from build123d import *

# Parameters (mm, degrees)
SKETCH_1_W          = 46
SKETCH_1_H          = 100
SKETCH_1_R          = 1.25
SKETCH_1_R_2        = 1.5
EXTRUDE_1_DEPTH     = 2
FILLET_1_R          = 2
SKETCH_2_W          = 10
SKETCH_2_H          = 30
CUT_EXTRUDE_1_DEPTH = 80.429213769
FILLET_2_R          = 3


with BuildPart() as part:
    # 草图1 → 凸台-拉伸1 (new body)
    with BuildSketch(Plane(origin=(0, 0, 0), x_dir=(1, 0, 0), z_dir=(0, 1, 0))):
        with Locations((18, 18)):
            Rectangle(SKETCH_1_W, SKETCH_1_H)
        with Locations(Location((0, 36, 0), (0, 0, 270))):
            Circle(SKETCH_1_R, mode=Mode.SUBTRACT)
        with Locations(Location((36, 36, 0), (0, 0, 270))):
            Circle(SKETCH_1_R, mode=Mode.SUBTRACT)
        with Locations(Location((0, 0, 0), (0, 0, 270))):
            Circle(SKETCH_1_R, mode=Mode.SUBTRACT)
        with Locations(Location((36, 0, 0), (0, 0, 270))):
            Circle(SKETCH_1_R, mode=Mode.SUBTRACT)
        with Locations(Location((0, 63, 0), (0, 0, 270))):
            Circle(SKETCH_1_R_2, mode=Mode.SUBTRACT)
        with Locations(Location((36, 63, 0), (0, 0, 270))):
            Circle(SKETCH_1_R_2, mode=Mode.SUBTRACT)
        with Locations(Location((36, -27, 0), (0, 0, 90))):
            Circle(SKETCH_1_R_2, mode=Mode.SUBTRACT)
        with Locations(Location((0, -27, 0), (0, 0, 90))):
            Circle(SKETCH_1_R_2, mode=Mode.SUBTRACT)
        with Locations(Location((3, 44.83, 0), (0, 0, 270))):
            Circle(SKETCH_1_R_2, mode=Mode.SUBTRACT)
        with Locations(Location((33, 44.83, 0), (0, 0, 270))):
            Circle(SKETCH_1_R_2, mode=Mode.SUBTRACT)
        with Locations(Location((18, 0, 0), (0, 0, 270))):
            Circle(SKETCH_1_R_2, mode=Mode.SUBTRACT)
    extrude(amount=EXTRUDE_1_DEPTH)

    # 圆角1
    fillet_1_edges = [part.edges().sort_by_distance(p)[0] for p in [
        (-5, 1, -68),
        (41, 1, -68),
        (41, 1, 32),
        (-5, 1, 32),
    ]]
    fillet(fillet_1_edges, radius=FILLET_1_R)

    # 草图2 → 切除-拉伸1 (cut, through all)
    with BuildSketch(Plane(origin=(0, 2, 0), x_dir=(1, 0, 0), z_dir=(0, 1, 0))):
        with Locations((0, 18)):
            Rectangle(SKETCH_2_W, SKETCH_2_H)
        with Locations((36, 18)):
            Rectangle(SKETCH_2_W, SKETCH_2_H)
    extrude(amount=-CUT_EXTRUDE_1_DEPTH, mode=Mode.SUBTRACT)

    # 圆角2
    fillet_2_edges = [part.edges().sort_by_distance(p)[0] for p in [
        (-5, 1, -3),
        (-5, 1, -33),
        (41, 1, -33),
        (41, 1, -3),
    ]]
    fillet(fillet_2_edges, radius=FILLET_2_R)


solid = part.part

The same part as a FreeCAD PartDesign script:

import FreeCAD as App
import Part
import Sketcher
from FreeCAD import Vector
Q = App.Units.Quantity


def edges_at(feature, points):
    """Names of the edges that pass closest to the given points."""
    edges = feature.Shape.Edges
    near = lambda p: min(range(len(edges)), key=lambda i: edges[i].distToShape(Part.Vertex(*p))[0])
    return sorted({f"Edge{near(p) + 1}" for p in points})


def add_polygon(sketch, points):
    """Adds a closed chain of lines whose ends are joined by coincident constraints."""
    first, n = sketch.GeometryCount, len(points)
    for a, b in zip(points, points[1:] + points[:1]):
        sketch.addGeometry(Part.LineSegment(App.Vector(*a, 0), App.Vector(*b, 0)), False)
    for i in range(n):
        sketch.addConstraint(Sketcher.Constraint("Coincident", first + i, 2, first + (i + 1) % n, 1))

doc = App.newDocument("Part")
body = doc.addObject("PartDesign::Body", "Body")

# Sketch on XZ plane
sketch1 = body.newObject("Sketcher::SketchObject", "Sketch")
sketch1.AttachmentSupport = (doc.getObject("XZ_Plane"), [""])
sketch1.MapMode = "FlatFace"
add_polygon(sketch1, [(-5, -68), (-5, 32), (41, 32), (41, -68)])  # lines 0-3
sketch1.addGeometry(Part.Circle(Vector(0, 27, 0), Vector(0, 0, 1), 1.5), False)  # 4
sketch1.addGeometry(Part.Circle(Vector(0, 0, 0), Vector(0, 0, 1), 1.25), False)  # 5
sketch1.addGeometry(Part.Circle(Vector(36, 27, 0), Vector(0, 0, 1), 1.5), False)  # 6
sketch1.addGeometry(Part.Circle(Vector(18, 0, 0), Vector(0, 0, 1), 1.5), False)  # 7
sketch1.addGeometry(Part.Circle(Vector(36, 0, 0), Vector(0, 0, 1), 1.25), False)  # 8
sketch1.addGeometry(Part.Circle(Vector(0, -36, 0), Vector(0, 0, 1), 1.25), False)  # 9
sketch1.addGeometry(Part.Circle(Vector(3, -44.83, 0), Vector(0, 0, 1), 1.5), False)  # 10
sketch1.addGeometry(Part.Circle(Vector(0, -63, 0), Vector(0, 0, 1), 1.5), False)  # 11
sketch1.addGeometry(Part.Circle(Vector(36, -36, 0), Vector(0, 0, 1), 1.25), False)  # 12
sketch1.addGeometry(Part.Circle(Vector(33, -44.83, 0), Vector(0, 0, 1), 1.5), False)  # 13
sketch1.addGeometry(Part.Circle(Vector(36, -63, 0), Vector(0, 0, 1), 1.5), False)  # 14
sketch1.addConstraint(Sketcher.Constraint("Vertical", 0))
sketch1.addConstraint(Sketcher.Constraint("Horizontal", 1))
sketch1.addConstraint(Sketcher.Constraint("Vertical", 2))
sketch1.addConstraint(Sketcher.Constraint("Horizontal", 3))
sketch1.addConstraint(Sketcher.Constraint("Coincident", 5, 3, -1, 1))
sketch1.addConstraint(Sketcher.Constraint("Equal", 4, 6))
sketch1.addConstraint(Sketcher.Constraint("Equal", 6, 7))
sketch1.addConstraint(Sketcher.Constraint("Equal", 5, 8))
sketch1.addConstraint(Sketcher.Constraint("Equal", 8, 9))
sketch1.addConstraint(Sketcher.Constraint("Equal", 7, 10))
sketch1.addConstraint(Sketcher.Constraint("Equal", 10, 11))
sketch1.addConstraint(Sketcher.Constraint("Equal", 9, 12))
sketch1.addConstraint(Sketcher.Constraint("Equal", 11, 13))
sketch1.addConstraint(Sketcher.Constraint("Equal", 13, 14))
sketch1.addConstraint(Sketcher.Constraint("PointOnObject", 4, 3, -2))
sketch1.addConstraint(Sketcher.Constraint("PointOnObject", 7, 3, -1))
sketch1.addConstraint(Sketcher.Constraint("PointOnObject", 8, 3, -1))
sketch1.addConstraint(Sketcher.Constraint("PointOnObject", 9, 3, -2))
sketch1.addConstraint(Sketcher.Constraint("PointOnObject", 11, 3, -2))
sketch1.addConstraint(Sketcher.Constraint("Horizontal", 4, 3, 6, 3))
sketch1.addConstraint(Sketcher.Constraint("Horizontal", 9, 3, 12, 3))
sketch1.addConstraint(Sketcher.Constraint("Horizontal", 10, 3, 13, 3))
sketch1.addConstraint(Sketcher.Constraint("Horizontal", 11, 3, 14, 3))
sketch1.addConstraint(Sketcher.Constraint("Vertical", 6, 3, 8, 3))
sketch1.addConstraint(Sketcher.Constraint("Vertical", 8, 3, 12, 3))
sketch1.addConstraint(Sketcher.Constraint("Vertical", 12, 3, 14, 3))
sketch1.addConstraint(Sketcher.Constraint("Diameter", 4, Q("3 mm")))
sketch1.addConstraint(Sketcher.Constraint("Diameter", 5, Q("2.5 mm")))
sketch1.addConstraint(Sketcher.Constraint("DistanceX", 1, 1, 1, 2, Q("46 mm")))
sketch1.addConstraint(Sketcher.Constraint("DistanceY", 0, 1, 0, 2, Q("100 mm")))
sketch1.addConstraint(Sketcher.Constraint("DistanceY", -1, 1, 4, 3, Q("27 mm")))
sketch1.addConstraint(Sketcher.Constraint("DistanceX", -1, 1, 6, 3, Q("36 mm")))
sketch1.addConstraint(Sketcher.Constraint("DistanceX", -1, 1, 7, 3, Q("18 mm")))
sketch1.addConstraint(Sketcher.Constraint("DistanceY", 9, 3, -1, 1, Q("36 mm")))
sketch1.addConstraint(Sketcher.Constraint("DistanceX", -1, 1, 10, 3, Q("3 mm")))
sketch1.addConstraint(Sketcher.Constraint("DistanceY", 11, 3, -1, 1, Q("63 mm")))
sketch1.addConstraint(Sketcher.Constraint("DistanceX", -1, 1, 13, 3, Q("33 mm")))
sketch1.addConstraint(Sketcher.Constraint("DistanceX", 0, 2, -1, 1, Q("5 mm")))
sketch1.addConstraint(Sketcher.Constraint("DistanceY", -1, 1, 0, 2, Q("32 mm")))
sketch1.addConstraint(Sketcher.Constraint("DistanceY", 10, 3, -1, 1, Q("44.83 mm")))
pad1 = body.newObject("PartDesign::Pad", "Pad")
pad1.Profile = sketch1
pad1.Length = 2
pad1.Reversed = True
doc.recompute()

fillet = body.newObject("PartDesign::Fillet", "Fillet")
fillet.Base = (pad1, edges_at(pad1, [
    (-5, 1, -68),
    (41, 1, -68),
    (41, 1, 32),
    (-5, 1, 32),
]))
fillet.Radius = 2

# Sketch on XZ plane
sketch2 = body.newObject("Sketcher::SketchObject", "Sketch001")
sketch2.AttachmentSupport = (doc.getObject("XZ_Plane"), [""])
sketch2.MapMode = "FlatFace"
sketch2.AttachmentOffset = App.Placement(Vector(0, 0, -2), App.Rotation())
add_polygon(sketch2, [(-5, -33), (-5, -3), (5, -3), (5, -33)])  # lines 0-3
add_polygon(sketch2, [(31, -33), (31, -3), (41, -3), (41, -33)])  # lines 4-7
sketch2.addConstraint(Sketcher.Constraint("Vertical", 0))
sketch2.addConstraint(Sketcher.Constraint("Horizontal", 1))
sketch2.addConstraint(Sketcher.Constraint("Vertical", 2))
sketch2.addConstraint(Sketcher.Constraint("Horizontal", 3))
sketch2.addConstraint(Sketcher.Constraint("Vertical", 4))
sketch2.addConstraint(Sketcher.Constraint("Horizontal", 5))
sketch2.addConstraint(Sketcher.Constraint("Vertical", 6))
sketch2.addConstraint(Sketcher.Constraint("Horizontal", 7))
sketch2.addConstraint(Sketcher.Constraint("Horizontal", 1, 2, 4, 2))
sketch2.addConstraint(Sketcher.Constraint("Horizontal", 3, 2, 6, 2))
sketch2.addConstraint(Sketcher.Constraint("Equal", 3, 5))
sketch2.addConstraint(Sketcher.Constraint("DistanceX", 1, 1, 1, 2, Q("10 mm")))
sketch2.addConstraint(Sketcher.Constraint("DistanceY", 0, 1, 0, 2, Q("30 mm")))
sketch2.addConstraint(Sketcher.Constraint("DistanceX", 0, 2, -1, 1, Q("5 mm")))
sketch2.addConstraint(Sketcher.Constraint("DistanceY", 0, 2, -1, 1, Q("3 mm")))
sketch2.addConstraint(Sketcher.Constraint("DistanceX", -1, 1, 4, 2, Q("31 mm")))
pocket1 = body.newObject("PartDesign::Pocket", "Pocket")
pocket1.Profile = sketch2
pocket1.Type = "ThroughAll"
pocket1.Reversed = True
doc.recompute()

fillet2 = body.newObject("PartDesign::Fillet", "Fillet001")
fillet2.Base = (pocket1, edges_at(pocket1, [
    (-5, 1, -3),
    (-5, 1, -33),
    (41, 1, -33),
    (41, 1, -3),
]))
fillet2.Radius = 3

doc.recompute()
